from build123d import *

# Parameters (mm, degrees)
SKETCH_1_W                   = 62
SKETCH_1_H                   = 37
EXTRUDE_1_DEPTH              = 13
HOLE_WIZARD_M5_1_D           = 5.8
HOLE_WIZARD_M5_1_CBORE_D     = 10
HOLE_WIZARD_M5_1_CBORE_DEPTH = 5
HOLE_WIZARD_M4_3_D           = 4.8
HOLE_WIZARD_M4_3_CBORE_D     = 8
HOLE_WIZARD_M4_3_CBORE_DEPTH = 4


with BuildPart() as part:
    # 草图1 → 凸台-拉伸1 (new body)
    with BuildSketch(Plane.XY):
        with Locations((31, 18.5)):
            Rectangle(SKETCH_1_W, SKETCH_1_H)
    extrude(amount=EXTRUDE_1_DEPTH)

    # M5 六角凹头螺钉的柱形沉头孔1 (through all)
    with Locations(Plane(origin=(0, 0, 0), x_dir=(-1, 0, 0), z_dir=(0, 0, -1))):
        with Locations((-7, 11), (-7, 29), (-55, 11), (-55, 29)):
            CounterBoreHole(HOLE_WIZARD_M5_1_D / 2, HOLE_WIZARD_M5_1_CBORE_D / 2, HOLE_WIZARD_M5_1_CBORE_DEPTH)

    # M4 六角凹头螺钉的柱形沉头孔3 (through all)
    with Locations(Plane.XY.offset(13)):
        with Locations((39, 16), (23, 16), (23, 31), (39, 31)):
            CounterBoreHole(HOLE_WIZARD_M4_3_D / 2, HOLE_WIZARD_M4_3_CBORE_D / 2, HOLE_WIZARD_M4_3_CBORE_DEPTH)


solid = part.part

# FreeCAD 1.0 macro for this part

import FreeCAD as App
import Part
import Sketcher
from FreeCAD import Vector

doc = App.newDocument("Part")
body = doc.addObject("PartDesign::Body", "Body")

# Sketch on XY plane
sketch1 = body.newObject("Sketcher::SketchObject", "Sketch")
sketch1.AttachmentSupport = (doc.getObject("XY_Plane"), [""])
sketch1.MapMode = "FlatFace"
sketch1.addGeometry(Part.LineSegment(Vector(0, 37, 0), Vector(0, 0, 0)), False)
sketch1.addGeometry(Part.LineSegment(Vector(0, 0, 0), Vector(62, 0, 0)), False)
sketch1.addGeometry(Part.LineSegment(Vector(62, 0, 0), Vector(62, 37, 0)), False)
sketch1.addGeometry(Part.LineSegment(Vector(62, 37, 0), Vector(0, 37, 0)), False)
sketch1.addConstraint(Sketcher.Constraint("Coincident", 0, 2, 1, 1))
sketch1.addConstraint(Sketcher.Constraint("Coincident", 1, 2, 2, 1))
sketch1.addConstraint(Sketcher.Constraint("Coincident", 2, 2, 3, 1))
sketch1.addConstraint(Sketcher.Constraint("Coincident", 3, 2, 0, 1))
sketch1.addConstraint(Sketcher.Constraint("Vertical", 0))
sketch1.addConstraint(Sketcher.Constraint("Horizontal", 1))
sketch1.addConstraint(Sketcher.Constraint("Vertical", 2))
sketch1.addConstraint(Sketcher.Constraint("Horizontal", 3))
sketch1.addConstraint(Sketcher.Constraint("Coincident", 0, 2, -1, 1))
sketch1.addConstraint(Sketcher.Constraint("DistanceX", 1, 1, 1, 2, 62.0))
sketch1.addConstraint(Sketcher.Constraint("DistanceY", 0, 2, 0, 1, 37.0))
pad1 = body.newObject("PartDesign::Pad", "Pad")
pad1.Profile = sketch1
pad1.Length = 13

# Sketch on XY plane
sketch2 = body.newObject("Sketcher::SketchObject", "Sketch001")
sketch2.AttachmentSupport = (doc.getObject("XY_Plane"), [""])
sketch2.MapMode = "FlatFace"
sketch2.addGeometry(Part.Circle(Vector(7, 11, 0), Vector(0, 0, 1), 2.9), False)
sketch2.addGeometry(Part.Circle(Vector(7, 29, 0), Vector(0, 0, 1), 2.9), False)
sketch2.addGeometry(Part.Circle(Vector(55, 11, 0), Vector(0, 0, 1), 2.9), False)
sketch2.addGeometry(Part.Circle(Vector(55, 29, 0), Vector(0, 0, 1), 2.9), False)
sketch2.addConstraint(Sketcher.Constraint("Equal", 0, 1))
sketch2.addConstraint(Sketcher.Constraint("Equal", 1, 2))
sketch2.addConstraint(Sketcher.Constraint("Equal", 2, 3))
sketch2.addConstraint(Sketcher.Constraint("Horizontal", 0, 3, 2, 3))
sketch2.addConstraint(Sketcher.Constraint("Horizontal", 1, 3, 3, 3))
sketch2.addConstraint(Sketcher.Constraint("Vertical", 0, 3, 1, 3))
sketch2.addConstraint(Sketcher.Constraint("Vertical", 2, 3, 3, 3))
sketch2.addConstraint(Sketcher.Constraint("Diameter", 0, 5.8))
sketch2.addConstraint(Sketcher.Constraint("DistanceX", -1, 1, 0, 3, 7.0))
sketch2.addConstraint(Sketcher.Constraint("DistanceY", -1, 1, 0, 3, 11.0))
sketch2.addConstraint(Sketcher.Constraint("DistanceY", -1, 1, 1, 3, 29.0))
sketch2.addConstraint(Sketcher.Constraint("DistanceX", -1, 1, 2, 3, 55.0))
doc.recompute()
hole = body.newObject("PartDesign::Hole", "Hole")
hole.Profile = sketch2
hole.ThreadType = "None"
hole.Diameter = 5.8
hole.DepthType = "ThroughAll"
hole.HoleCutType = "Counterbore"
hole.HoleCutDiameter = 10
hole.HoleCutDepth = 5
hole.Reversed = True

# Sketch on XY plane
sketch3 = body.newObject("Sketcher::SketchObject", "Sketch002")
sketch3.AttachmentSupport = (doc.getObject("XY_Plane"), [""])
sketch3.MapMode = "FlatFace"
sketch3.AttachmentOffset = App.Placement(Vector(0, 0, 13), App.Rotation())
sketch3.addGeometry(Part.Circle(Vector(39, 16, 0), Vector(0, 0, 1), 2.4), False)
sketch3.addGeometry(Part.Circle(Vector(23, 16, 0), Vector(0, 0, 1), 2.4), False)
sketch3.addGeometry(Part.Circle(Vector(23, 31, 0), Vector(0, 0, 1), 2.4), False)
sketch3.addGeometry(Part.Circle(Vector(39, 31, 0), Vector(0, 0, 1), 2.4), False)
sketch3.addConstraint(Sketcher.Constraint("Equal", 0, 1))
sketch3.addConstraint(Sketcher.Constraint("Equal", 1, 2))
sketch3.addConstraint(Sketcher.Constraint("Equal", 2, 3))
sketch3.addConstraint(Sketcher.Constraint("Horizontal", 0, 3, 1, 3))
sketch3.addConstraint(Sketcher.Constraint("Horizontal", 2, 3, 3, 3))
sketch3.addConstraint(Sketcher.Constraint("Vertical", 1, 3, 2, 3))
sketch3.addConstraint(Sketcher.Constraint("Vertical", 0, 3, 3, 3))
sketch3.addConstraint(Sketcher.Constraint("Diameter", 0, 4.8))
sketch3.addConstraint(Sketcher.Constraint("DistanceX", -1, 1, 0, 3, 39.0))
sketch3.addConstraint(Sketcher.Constraint("DistanceY", -1, 1, 0, 3, 16.0))
sketch3.addConstraint(Sketcher.Constraint("DistanceX", -1, 1, 1, 3, 23.0))
sketch3.addConstraint(Sketcher.Constraint("DistanceY", -1, 1, 2, 3, 31.0))
doc.recompute()
hole2 = body.newObject("PartDesign::Hole", "Hole001")
hole2.Profile = sketch3
hole2.ThreadType = "None"
hole2.Diameter = 4.8
hole2.DepthType = "ThroughAll"
hole2.HoleCutType = "Counterbore"
hole2.HoleCutDiameter = 8
hole2.HoleCutDepth = 4

doc.recompute()
